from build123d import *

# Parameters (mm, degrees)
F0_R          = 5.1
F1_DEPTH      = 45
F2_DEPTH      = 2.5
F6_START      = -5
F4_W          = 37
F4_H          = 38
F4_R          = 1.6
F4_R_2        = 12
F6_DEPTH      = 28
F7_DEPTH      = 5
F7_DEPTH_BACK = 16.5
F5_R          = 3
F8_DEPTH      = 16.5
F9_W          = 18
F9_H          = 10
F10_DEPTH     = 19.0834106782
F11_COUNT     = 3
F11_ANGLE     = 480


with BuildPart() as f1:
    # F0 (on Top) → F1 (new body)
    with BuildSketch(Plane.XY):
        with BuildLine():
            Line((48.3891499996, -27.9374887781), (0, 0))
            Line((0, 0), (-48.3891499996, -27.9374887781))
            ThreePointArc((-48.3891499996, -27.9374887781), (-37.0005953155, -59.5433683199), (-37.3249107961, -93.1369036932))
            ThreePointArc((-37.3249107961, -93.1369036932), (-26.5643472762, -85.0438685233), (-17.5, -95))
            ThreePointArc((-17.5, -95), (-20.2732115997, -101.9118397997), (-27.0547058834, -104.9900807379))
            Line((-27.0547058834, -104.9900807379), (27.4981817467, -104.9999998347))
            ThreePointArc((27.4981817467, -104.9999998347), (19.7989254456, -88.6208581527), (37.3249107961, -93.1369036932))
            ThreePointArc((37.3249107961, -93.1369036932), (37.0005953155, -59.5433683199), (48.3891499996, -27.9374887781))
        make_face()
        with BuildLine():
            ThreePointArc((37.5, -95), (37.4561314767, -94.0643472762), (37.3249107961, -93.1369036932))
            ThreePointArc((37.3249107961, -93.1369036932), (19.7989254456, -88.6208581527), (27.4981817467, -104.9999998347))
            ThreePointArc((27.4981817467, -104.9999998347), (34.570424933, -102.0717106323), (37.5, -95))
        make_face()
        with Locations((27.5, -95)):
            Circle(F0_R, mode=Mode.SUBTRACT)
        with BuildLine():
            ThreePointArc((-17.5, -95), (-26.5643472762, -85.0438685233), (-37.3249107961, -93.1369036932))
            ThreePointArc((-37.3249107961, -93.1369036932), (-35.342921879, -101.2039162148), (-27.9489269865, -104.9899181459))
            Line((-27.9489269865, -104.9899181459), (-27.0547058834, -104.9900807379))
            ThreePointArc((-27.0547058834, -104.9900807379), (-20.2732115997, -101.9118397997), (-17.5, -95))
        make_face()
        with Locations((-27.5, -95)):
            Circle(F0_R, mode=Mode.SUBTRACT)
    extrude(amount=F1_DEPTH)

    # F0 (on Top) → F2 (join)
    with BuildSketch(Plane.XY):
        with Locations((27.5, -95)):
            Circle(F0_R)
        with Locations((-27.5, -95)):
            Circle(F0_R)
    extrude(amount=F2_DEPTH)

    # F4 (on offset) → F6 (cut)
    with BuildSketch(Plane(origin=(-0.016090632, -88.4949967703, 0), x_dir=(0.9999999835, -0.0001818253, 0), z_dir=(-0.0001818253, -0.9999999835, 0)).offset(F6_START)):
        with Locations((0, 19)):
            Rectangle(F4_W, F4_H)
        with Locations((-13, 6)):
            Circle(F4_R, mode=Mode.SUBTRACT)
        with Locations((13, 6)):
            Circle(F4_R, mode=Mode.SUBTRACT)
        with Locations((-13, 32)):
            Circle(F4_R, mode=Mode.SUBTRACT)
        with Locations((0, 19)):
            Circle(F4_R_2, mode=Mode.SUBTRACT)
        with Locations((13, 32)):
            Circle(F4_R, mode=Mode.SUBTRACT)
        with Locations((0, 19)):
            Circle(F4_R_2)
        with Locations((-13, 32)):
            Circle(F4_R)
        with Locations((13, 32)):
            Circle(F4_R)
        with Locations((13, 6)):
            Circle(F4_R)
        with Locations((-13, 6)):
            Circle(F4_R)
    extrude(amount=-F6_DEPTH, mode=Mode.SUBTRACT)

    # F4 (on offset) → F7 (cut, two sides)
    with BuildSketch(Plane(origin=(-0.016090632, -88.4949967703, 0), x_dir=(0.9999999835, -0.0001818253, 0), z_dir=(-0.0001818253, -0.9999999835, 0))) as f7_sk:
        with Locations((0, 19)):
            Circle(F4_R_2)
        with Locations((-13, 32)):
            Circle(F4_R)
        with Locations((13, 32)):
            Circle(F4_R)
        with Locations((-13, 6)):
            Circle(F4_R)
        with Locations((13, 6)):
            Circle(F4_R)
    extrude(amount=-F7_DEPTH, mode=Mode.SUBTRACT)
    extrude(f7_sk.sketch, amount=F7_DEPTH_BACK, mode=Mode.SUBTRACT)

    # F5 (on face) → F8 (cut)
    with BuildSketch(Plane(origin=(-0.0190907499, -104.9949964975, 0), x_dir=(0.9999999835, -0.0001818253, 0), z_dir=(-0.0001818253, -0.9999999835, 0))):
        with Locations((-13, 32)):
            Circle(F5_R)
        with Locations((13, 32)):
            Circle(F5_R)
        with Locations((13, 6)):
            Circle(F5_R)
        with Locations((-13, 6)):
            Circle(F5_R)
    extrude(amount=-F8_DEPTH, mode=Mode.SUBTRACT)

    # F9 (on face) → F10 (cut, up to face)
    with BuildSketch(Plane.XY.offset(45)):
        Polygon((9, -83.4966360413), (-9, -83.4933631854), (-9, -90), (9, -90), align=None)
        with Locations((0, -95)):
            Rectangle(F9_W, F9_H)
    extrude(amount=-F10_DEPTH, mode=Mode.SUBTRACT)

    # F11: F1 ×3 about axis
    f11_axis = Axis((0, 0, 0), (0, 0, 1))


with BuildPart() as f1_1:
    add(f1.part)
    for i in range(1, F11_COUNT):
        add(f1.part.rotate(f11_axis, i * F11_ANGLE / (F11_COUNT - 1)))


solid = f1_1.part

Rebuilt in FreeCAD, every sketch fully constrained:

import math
import FreeCAD as App
import Part
import Sketcher

V = App.Vector
Q = App.Units.Quantity

doc = App.newDocument("Part")
body = doc.addObject("PartDesign::Body", "Body")

sketch1 = doc.addObject("Sketcher::SketchObject", "Sketch")
body.addObject(sketch1)
sketch1.AttachmentSupport = (doc.XY_Plane, [""])
sketch1.MapMode = "FlatFace"
sketch1.addGeometry(Part.LineSegment(V(48.4, -27.9, 0), V(0, 0, 0)), False)
sketch1.addGeometry(Part.LineSegment(V(0, 0, 0), V(-48.4, -27.9, 0)), False)
sketch1.addGeometry(Part.ArcOfCircle(Part.Circle(V(-130.7, -75.4, 0), V(0, 0, 1), 95), math.radians(-11), math.radians(30)), False)
sketch1.addGeometry(Part.ArcOfCircle(Part.Circle(V(-27.5, -95, 0), V(0, 0, 1), 10), math.radians(169), math.radians(267)), False)
sketch1.addGeometry(Part.LineSegment(V(-27.9, -105, 0), V(-27.1, -105, 0)), False)
sketch1.addGeometry(Part.LineSegment(V(-27.1, -105, 0), V(27.5, -105, 0)), False)
sketch1.addGeometry(Part.ArcOfCircle(Part.Circle(V(27.5, -95, 0), V(0, 0, 1), 10), math.radians(-90), math.radians(0)), False)
sketch1.addGeometry(Part.ArcOfCircle(Part.Circle(V(27.5, -95, 0), V(0, 0, 1), 10), math.radians(0), math.radians(10.74)), False)
sketch1.addGeometry(Part.ArcOfCircle(Part.Circle(V(130.7, -75.4, 0), V(0, 0, 1), 95), math.radians(150), math.radians(191)), False)
sketch1.addGeometry(Part.Circle(V(-27.5, -95, 0), V(0, 0, 1), 5.1), False)
sketch1.addGeometry(Part.Circle(V(27.5, -95, 0), V(0, 0, 1), 5.1), False)
sketch1.addConstraint(Sketcher.Constraint("Coincident", 0, 2, 1, 1))
sketch1.addConstraint(Sketcher.Constraint("Coincident", 1, 2, 2, 2))
sketch1.addConstraint(Sketcher.Constraint("Tangent", 2, 1, 3, 1))
sketch1.addConstraint(Sketcher.Constraint("Coincident", 3, 2, 4, 1))
sketch1.addConstraint(Sketcher.Constraint("Coincident", 4, 2, 5, 1))
sketch1.addConstraint(Sketcher.Constraint("Tangent", 5, 2, 6, 1))
sketch1.addConstraint(Sketcher.Constraint("Tangent", 6, 2, 7, 1))
sketch1.addConstraint(Sketcher.Constraint("Tangent", 7, 2, 8, 2))
sketch1.addConstraint(Sketcher.Constraint("Coincident", 8, 1, 0, 1))
sketch1.addConstraint(Sketcher.Constraint("Coincident", 0, 2, -1, 1))
sketch1.addConstraint(Sketcher.Constraint("Coincident", 9, 3, 3, 3))
sketch1.addConstraint(Sketcher.Constraint("Coincident", 10, 3, 6, 3))
sketch1.addConstraint(Sketcher.Constraint("Equal", 3, 6))
sketch1.addConstraint(Sketcher.Constraint("Equal", 6, 7))
sketch1.addConstraint(Sketcher.Constraint("Equal", 2, 8))
sketch1.addConstraint(Sketcher.Constraint("Equal", 9, 10))
sketch1.addConstraint(Sketcher.Constraint("Symmetric", 3, 3, 6, 3, -2))
sketch1.addConstraint(Sketcher.Constraint("Symmetric", 1, 2, 8, 1, -2))
sketch1.addConstraint(Sketcher.Constraint("Parallel", 4, 5))
sketch1.addConstraint(Sketcher.Constraint("Horizontal", 10, 3, 6, 2))
sketch1.addConstraint(Sketcher.Constraint("Radius", 2, Q("95 mm")))
sketch1.addConstraint(Sketcher.Constraint("Radius", 3, Q("10 mm")))
sketch1.addConstraint(Sketcher.Constraint("Diameter", 9, Q("10.2 mm")))
sketch1.addConstraint(Sketcher.Constraint("Angle", 0, Q("150 deg")))
sketch1.addConstraint(Sketcher.Constraint("DistanceY", 3, 3, -1, 1, Q("95 mm")))
sketch1.addConstraint(Sketcher.Constraint("DistanceX", 3, 3, 6, 3, Q("55 mm")))
sketch1.addConstraint(Sketcher.Constraint("DistanceY", 2, 3, 1, 2, Q("47.5 mm")))
sketch1.addConstraint(Sketcher.Constraint("Distance", 4, Q("0.894221 mm")))
sketch1.addConstraint(Sketcher.Constraint("Distance", 5, Q("54.552889 mm")))
pad1 = doc.addObject("PartDesign::Pad", "Pad")
body.addObject(pad1)
pad1.Profile = sketch1
pad1.Length = 45

sketch2 = doc.addObject("Sketcher::SketchObject", "Sketch001")
body.addObject(sketch2)
sketch2.AttachmentSupport = (doc.XY_Plane, [""])
sketch2.MapMode = "FlatFace"
sketch2.addGeometry(Part.Circle(V(28, -95, 0), V(0, 0, 1), 5), False)
sketch2.addGeometry(Part.Circle(V(-28, -95, 0), V(0, 0, 1), 5), False)
sketch2.addConstraint(Sketcher.Constraint("Equal", 0, 1))
sketch2.addConstraint(Sketcher.Constraint("Symmetric", 0, 3, 1, 3, -2))
sketch2.addConstraint(Sketcher.Constraint("Diameter", 0, Q("10.2 mm")))
sketch2.addConstraint(Sketcher.Constraint("DistanceY", 0, 3, -1, 1, Q("95 mm")))
sketch2.addConstraint(Sketcher.Constraint("DistanceX", 1, 3, 0, 3, Q("55 mm")))
pad2 = doc.addObject("PartDesign::Pad", "Pad001")
body.addObject(pad2)
pad2.Profile = sketch2
pad2.Length = 2.5

sketch3 = doc.addObject("Sketcher::SketchObject", "Sketch002")
body.addObject(sketch3)
sketch3.Placement = App.Placement(V(-0.015182, -83.494997, 0), App.Rotation(V(0.999999983, -0.000181825, 0), V(0, 0, 0.999999999), V(-0.000181825, -0.999999983, 0), "ZXY"))
sketch3.addGeometry(Part.LineSegment(V(-18, 38, 0), V(-18, 0, 0)), False)
sketch3.addGeometry(Part.LineSegment(V(-18, 0, 0), V(18, 0, 0)), False)
sketch3.addGeometry(Part.LineSegment(V(18, 0, 0), V(18, 38, 0)), False)
sketch3.addGeometry(Part.LineSegment(V(18, 38, 0), V(-18, 38, 0)), False)
sketch3.addConstraint(Sketcher.Constraint("Coincident", 0, 2, 1, 1))
sketch3.addConstraint(Sketcher.Constraint("Coincident", 1, 2, 2, 1))
sketch3.addConstraint(Sketcher.Constraint("Coincident", 2, 2, 3, 1))
sketch3.addConstraint(Sketcher.Constraint("Coincident", 3, 2, 0, 1))
sketch3.addConstraint(Sketcher.Constraint("Vertical", 0))
sketch3.addConstraint(Sketcher.Constraint("Horizontal", 1))
sketch3.addConstraint(Sketcher.Constraint("Vertical", 2))
sketch3.addConstraint(Sketcher.Constraint("Horizontal", 3))
sketch3.addConstraint(Sketcher.Constraint("Symmetric", 0, 2, 1, 2, -1, 1))
sketch3.addConstraint(Sketcher.Constraint("DistanceX", 1, 1, 1, 2, Q("37 mm")))
sketch3.addConstraint(Sketcher.Constraint("DistanceY", 0, 2, 0, 1, Q("38 mm")))
pocket1 = doc.addObject("PartDesign::Pocket", "Pocket")
body.addObject(pocket1)
pocket1.Profile = sketch3
pocket1.Length = 28

sketch4 = doc.addObject("Sketcher::SketchObject", "Sketch003")
body.addObject(sketch4)
sketch4.Placement = App.Placement(V(-0.016091, -88.494997, 0), App.Rotation(V(0.999999983, -0.000181825, 0), V(0, 0, 0.999999999), V(-0.000181825, -0.999999983, 0), "ZXY"))
sketch4.addGeometry(Part.Circle(V(0, 19, 0), V(0, 0, 1), 12), False)
sketch4.addGeometry(Part.Circle(V(-13, 32, 0), V(0, 0, 1), 1.6), False)
sketch4.addGeometry(Part.Circle(V(13, 32, 0), V(0, 0, 1), 1.6), False)
sketch4.addGeometry(Part.Circle(V(-13, 6, 0), V(0, 0, 1), 1.6), False)
sketch4.addGeometry(Part.Circle(V(13, 6, 0), V(0, 0, 1), 1.6), False)
sketch4.addConstraint(Sketcher.Constraint("Equal", 1, 2))
sketch4.addConstraint(Sketcher.Constraint("Equal", 2, 3))
sketch4.addConstraint(Sketcher.Constraint("Equal", 3, 4))
sketch4.addConstraint(Sketcher.Constraint("Symmetric", 1, 3, 2, 3, -2))
sketch4.addConstraint(Sketcher.Constraint("Symmetric", 3, 3, 4, 3, -2))
sketch4.addConstraint(Sketcher.Constraint("PointOnObject", 0, 3, -2))
sketch4.addConstraint(Sketcher.Constraint("Vertical", 1, 3, 3, 3))
sketch4.addConstraint(Sketcher.Constraint("Diameter", 0, Q("24 mm")))
sketch4.addConstraint(Sketcher.Constraint("Diameter", 1, Q("3.2 mm")))
sketch4.addConstraint(Sketcher.Constraint("DistanceY", -1, 1, 0, 3, Q("19 mm")))
sketch4.addConstraint(Sketcher.Constraint("DistanceX", 1, 3, -1, 1, Q("13 mm")))
sketch4.addConstraint(Sketcher.Constraint("DistanceY", -1, 1, 1, 3, Q("32 mm")))
sketch4.addConstraint(Sketcher.Constraint("DistanceY", -1, 1, 3, 3, Q("6 mm")))
pocket2 = doc.addObject("PartDesign::Pocket", "Pocket001")
body.addObject(pocket2)
pocket2.Profile = sketch4
pocket2.Type = "TwoLengths"
pocket2.Length = 5
pocket2.Length2 = 16.5

sketch5 = doc.addObject("Sketcher::SketchObject", "Sketch004")
body.addObject(sketch5)
sketch5.Placement = App.Placement(V(-0.019091, -104.994996, 0), App.Rotation(V(0.999999983, -0.000181825, 0), V(0, 0, 0.999999999), V(-0.000181825, -0.999999983, 0), "ZXY"))
sketch5.addGeometry(Part.Circle(V(-13, 32, 0), V(0, 0, 1), 3), False)
sketch5.addGeometry(Part.Circle(V(13, 32, 0), V(0, 0, 1), 3), False)
sketch5.addGeometry(Part.Circle(V(13, 6, 0), V(0, 0, 1), 3), False)
sketch5.addGeometry(Part.Circle(V(-13, 6, 0), V(0, 0, 1), 3), False)
sketch5.addConstraint(Sketcher.Constraint("Equal", 0, 1))
sketch5.addConstraint(Sketcher.Constraint("Equal", 1, 2))
sketch5.addConstraint(Sketcher.Constraint("Equal", 2, 3))
sketch5.addConstraint(Sketcher.Constraint("Symmetric", 0, 3, 1, 3, -2))
sketch5.addConstraint(Sketcher.Constraint("Symmetric", 2, 3, 3, 3, -2))
sketch5.addConstraint(Sketcher.Constraint("Vertical", 1, 3, 2, 3))
sketch5.addConstraint(Sketcher.Constraint("Diameter", 0, Q("6 mm")))
sketch5.addConstraint(Sketcher.Constraint("DistanceX", 0, 3, -1, 1, Q("13 mm")))
sketch5.addConstraint(Sketcher.Constraint("DistanceY", -1, 1, 0, 3, Q("32 mm")))
sketch5.addConstraint(Sketcher.Constraint("DistanceY", -1, 1, 2, 3, Q("6 mm")))
pocket3 = doc.addObject("PartDesign::Pocket", "Pocket002")
body.addObject(pocket3)
pocket3.Profile = sketch5
pocket3.Length = 16.5

sketch6 = doc.addObject("Sketcher::SketchObject", "Sketch005")
body.addObject(sketch6)
sketch6.AttachmentSupport = (doc.XY_Plane, [""])
sketch6.MapMode = "FlatFace"
sketch6.AttachmentOffset = App.Placement(V(0, 0, 45), App.Rotation())
sketch6.addGeometry(Part.LineSegment(V(9, -83, 0), V(-9, -83, 0)), False)
sketch6.addGeometry(Part.LineSegment(V(-9, -83, 0), V(-9, -100, 0)), False)
sketch6.addGeometry(Part.LineSegment(V(-9, -100, 0), V(9, -100, 0)), False)
sketch6.addGeometry(Part.LineSegment(V(9, -100, 0), V(9, -83, 0)), False)
sketch6.addConstraint(Sketcher.Constraint("Coincident", 0, 2, 1, 1))
sketch6.addConstraint(Sketcher.Constraint("Coincident", 1, 2, 2, 1))
sketch6.addConstraint(Sketcher.Constraint("Coincident", 2, 2, 3, 1))
sketch6.addConstraint(Sketcher.Constraint("Coincident", 3, 2, 0, 1))
sketch6.addConstraint(Sketcher.Constraint("Vertical", 1))
sketch6.addConstraint(Sketcher.Constraint("Horizontal", 2))
sketch6.addConstraint(Sketcher.Constraint("Vertical", 3))
sketch6.addConstraint(Sketcher.Constraint("DistanceX", 2, 1, 2, 2, Q("18 mm")))
sketch6.addConstraint(Sketcher.Constraint("DistanceX", 0, 2, -1, 1, Q("9 mm")))
sketch6.addConstraint(Sketcher.Constraint("DistanceY", 1, 2, -1, 1, Q("100 mm")))
sketch6.addConstraint(Sketcher.Constraint("DistanceY", 1, 2, 1, 1, Q("16.506637 mm")))
sketch6.addConstraint(Sketcher.Constraint("DistanceY", 3, 1, 3, 2, Q("16.503364 mm")))
pocket4 = doc.addObject("PartDesign::Pocket", "Pocket003")
body.addObject(pocket4)
pocket4.Profile = sketch6
pocket4.Length = 19.083411
body2 = doc.addObject("PartDesign::Body", "Body001")
doc.recompute()

body2.BaseFeature = body
doc.recompute()

body3 = doc.addObject("PartDesign::Body", "Body002")
body3.BaseFeature = body
body3.Placement = App.Placement(V(0, 0, 0), App.Rotation(V(0, 0, 1), 240))
boolean = doc.addObject("PartDesign::Boolean", "Boolean")
body2.addObject(boolean)
boolean.Type = "Fuse"
boolean.addObjects([body3])
doc.recompute()

body.Placement = App.Placement(V(0, 0, 0), App.Rotation(V(0, 0, 1), 120))
boolean2 = doc.addObject("PartDesign::Boolean", "Boolean001")
body2.addObject(boolean2)
boolean2.Type = "Fuse"
boolean2.addObjects([body])

doc.recompute()
